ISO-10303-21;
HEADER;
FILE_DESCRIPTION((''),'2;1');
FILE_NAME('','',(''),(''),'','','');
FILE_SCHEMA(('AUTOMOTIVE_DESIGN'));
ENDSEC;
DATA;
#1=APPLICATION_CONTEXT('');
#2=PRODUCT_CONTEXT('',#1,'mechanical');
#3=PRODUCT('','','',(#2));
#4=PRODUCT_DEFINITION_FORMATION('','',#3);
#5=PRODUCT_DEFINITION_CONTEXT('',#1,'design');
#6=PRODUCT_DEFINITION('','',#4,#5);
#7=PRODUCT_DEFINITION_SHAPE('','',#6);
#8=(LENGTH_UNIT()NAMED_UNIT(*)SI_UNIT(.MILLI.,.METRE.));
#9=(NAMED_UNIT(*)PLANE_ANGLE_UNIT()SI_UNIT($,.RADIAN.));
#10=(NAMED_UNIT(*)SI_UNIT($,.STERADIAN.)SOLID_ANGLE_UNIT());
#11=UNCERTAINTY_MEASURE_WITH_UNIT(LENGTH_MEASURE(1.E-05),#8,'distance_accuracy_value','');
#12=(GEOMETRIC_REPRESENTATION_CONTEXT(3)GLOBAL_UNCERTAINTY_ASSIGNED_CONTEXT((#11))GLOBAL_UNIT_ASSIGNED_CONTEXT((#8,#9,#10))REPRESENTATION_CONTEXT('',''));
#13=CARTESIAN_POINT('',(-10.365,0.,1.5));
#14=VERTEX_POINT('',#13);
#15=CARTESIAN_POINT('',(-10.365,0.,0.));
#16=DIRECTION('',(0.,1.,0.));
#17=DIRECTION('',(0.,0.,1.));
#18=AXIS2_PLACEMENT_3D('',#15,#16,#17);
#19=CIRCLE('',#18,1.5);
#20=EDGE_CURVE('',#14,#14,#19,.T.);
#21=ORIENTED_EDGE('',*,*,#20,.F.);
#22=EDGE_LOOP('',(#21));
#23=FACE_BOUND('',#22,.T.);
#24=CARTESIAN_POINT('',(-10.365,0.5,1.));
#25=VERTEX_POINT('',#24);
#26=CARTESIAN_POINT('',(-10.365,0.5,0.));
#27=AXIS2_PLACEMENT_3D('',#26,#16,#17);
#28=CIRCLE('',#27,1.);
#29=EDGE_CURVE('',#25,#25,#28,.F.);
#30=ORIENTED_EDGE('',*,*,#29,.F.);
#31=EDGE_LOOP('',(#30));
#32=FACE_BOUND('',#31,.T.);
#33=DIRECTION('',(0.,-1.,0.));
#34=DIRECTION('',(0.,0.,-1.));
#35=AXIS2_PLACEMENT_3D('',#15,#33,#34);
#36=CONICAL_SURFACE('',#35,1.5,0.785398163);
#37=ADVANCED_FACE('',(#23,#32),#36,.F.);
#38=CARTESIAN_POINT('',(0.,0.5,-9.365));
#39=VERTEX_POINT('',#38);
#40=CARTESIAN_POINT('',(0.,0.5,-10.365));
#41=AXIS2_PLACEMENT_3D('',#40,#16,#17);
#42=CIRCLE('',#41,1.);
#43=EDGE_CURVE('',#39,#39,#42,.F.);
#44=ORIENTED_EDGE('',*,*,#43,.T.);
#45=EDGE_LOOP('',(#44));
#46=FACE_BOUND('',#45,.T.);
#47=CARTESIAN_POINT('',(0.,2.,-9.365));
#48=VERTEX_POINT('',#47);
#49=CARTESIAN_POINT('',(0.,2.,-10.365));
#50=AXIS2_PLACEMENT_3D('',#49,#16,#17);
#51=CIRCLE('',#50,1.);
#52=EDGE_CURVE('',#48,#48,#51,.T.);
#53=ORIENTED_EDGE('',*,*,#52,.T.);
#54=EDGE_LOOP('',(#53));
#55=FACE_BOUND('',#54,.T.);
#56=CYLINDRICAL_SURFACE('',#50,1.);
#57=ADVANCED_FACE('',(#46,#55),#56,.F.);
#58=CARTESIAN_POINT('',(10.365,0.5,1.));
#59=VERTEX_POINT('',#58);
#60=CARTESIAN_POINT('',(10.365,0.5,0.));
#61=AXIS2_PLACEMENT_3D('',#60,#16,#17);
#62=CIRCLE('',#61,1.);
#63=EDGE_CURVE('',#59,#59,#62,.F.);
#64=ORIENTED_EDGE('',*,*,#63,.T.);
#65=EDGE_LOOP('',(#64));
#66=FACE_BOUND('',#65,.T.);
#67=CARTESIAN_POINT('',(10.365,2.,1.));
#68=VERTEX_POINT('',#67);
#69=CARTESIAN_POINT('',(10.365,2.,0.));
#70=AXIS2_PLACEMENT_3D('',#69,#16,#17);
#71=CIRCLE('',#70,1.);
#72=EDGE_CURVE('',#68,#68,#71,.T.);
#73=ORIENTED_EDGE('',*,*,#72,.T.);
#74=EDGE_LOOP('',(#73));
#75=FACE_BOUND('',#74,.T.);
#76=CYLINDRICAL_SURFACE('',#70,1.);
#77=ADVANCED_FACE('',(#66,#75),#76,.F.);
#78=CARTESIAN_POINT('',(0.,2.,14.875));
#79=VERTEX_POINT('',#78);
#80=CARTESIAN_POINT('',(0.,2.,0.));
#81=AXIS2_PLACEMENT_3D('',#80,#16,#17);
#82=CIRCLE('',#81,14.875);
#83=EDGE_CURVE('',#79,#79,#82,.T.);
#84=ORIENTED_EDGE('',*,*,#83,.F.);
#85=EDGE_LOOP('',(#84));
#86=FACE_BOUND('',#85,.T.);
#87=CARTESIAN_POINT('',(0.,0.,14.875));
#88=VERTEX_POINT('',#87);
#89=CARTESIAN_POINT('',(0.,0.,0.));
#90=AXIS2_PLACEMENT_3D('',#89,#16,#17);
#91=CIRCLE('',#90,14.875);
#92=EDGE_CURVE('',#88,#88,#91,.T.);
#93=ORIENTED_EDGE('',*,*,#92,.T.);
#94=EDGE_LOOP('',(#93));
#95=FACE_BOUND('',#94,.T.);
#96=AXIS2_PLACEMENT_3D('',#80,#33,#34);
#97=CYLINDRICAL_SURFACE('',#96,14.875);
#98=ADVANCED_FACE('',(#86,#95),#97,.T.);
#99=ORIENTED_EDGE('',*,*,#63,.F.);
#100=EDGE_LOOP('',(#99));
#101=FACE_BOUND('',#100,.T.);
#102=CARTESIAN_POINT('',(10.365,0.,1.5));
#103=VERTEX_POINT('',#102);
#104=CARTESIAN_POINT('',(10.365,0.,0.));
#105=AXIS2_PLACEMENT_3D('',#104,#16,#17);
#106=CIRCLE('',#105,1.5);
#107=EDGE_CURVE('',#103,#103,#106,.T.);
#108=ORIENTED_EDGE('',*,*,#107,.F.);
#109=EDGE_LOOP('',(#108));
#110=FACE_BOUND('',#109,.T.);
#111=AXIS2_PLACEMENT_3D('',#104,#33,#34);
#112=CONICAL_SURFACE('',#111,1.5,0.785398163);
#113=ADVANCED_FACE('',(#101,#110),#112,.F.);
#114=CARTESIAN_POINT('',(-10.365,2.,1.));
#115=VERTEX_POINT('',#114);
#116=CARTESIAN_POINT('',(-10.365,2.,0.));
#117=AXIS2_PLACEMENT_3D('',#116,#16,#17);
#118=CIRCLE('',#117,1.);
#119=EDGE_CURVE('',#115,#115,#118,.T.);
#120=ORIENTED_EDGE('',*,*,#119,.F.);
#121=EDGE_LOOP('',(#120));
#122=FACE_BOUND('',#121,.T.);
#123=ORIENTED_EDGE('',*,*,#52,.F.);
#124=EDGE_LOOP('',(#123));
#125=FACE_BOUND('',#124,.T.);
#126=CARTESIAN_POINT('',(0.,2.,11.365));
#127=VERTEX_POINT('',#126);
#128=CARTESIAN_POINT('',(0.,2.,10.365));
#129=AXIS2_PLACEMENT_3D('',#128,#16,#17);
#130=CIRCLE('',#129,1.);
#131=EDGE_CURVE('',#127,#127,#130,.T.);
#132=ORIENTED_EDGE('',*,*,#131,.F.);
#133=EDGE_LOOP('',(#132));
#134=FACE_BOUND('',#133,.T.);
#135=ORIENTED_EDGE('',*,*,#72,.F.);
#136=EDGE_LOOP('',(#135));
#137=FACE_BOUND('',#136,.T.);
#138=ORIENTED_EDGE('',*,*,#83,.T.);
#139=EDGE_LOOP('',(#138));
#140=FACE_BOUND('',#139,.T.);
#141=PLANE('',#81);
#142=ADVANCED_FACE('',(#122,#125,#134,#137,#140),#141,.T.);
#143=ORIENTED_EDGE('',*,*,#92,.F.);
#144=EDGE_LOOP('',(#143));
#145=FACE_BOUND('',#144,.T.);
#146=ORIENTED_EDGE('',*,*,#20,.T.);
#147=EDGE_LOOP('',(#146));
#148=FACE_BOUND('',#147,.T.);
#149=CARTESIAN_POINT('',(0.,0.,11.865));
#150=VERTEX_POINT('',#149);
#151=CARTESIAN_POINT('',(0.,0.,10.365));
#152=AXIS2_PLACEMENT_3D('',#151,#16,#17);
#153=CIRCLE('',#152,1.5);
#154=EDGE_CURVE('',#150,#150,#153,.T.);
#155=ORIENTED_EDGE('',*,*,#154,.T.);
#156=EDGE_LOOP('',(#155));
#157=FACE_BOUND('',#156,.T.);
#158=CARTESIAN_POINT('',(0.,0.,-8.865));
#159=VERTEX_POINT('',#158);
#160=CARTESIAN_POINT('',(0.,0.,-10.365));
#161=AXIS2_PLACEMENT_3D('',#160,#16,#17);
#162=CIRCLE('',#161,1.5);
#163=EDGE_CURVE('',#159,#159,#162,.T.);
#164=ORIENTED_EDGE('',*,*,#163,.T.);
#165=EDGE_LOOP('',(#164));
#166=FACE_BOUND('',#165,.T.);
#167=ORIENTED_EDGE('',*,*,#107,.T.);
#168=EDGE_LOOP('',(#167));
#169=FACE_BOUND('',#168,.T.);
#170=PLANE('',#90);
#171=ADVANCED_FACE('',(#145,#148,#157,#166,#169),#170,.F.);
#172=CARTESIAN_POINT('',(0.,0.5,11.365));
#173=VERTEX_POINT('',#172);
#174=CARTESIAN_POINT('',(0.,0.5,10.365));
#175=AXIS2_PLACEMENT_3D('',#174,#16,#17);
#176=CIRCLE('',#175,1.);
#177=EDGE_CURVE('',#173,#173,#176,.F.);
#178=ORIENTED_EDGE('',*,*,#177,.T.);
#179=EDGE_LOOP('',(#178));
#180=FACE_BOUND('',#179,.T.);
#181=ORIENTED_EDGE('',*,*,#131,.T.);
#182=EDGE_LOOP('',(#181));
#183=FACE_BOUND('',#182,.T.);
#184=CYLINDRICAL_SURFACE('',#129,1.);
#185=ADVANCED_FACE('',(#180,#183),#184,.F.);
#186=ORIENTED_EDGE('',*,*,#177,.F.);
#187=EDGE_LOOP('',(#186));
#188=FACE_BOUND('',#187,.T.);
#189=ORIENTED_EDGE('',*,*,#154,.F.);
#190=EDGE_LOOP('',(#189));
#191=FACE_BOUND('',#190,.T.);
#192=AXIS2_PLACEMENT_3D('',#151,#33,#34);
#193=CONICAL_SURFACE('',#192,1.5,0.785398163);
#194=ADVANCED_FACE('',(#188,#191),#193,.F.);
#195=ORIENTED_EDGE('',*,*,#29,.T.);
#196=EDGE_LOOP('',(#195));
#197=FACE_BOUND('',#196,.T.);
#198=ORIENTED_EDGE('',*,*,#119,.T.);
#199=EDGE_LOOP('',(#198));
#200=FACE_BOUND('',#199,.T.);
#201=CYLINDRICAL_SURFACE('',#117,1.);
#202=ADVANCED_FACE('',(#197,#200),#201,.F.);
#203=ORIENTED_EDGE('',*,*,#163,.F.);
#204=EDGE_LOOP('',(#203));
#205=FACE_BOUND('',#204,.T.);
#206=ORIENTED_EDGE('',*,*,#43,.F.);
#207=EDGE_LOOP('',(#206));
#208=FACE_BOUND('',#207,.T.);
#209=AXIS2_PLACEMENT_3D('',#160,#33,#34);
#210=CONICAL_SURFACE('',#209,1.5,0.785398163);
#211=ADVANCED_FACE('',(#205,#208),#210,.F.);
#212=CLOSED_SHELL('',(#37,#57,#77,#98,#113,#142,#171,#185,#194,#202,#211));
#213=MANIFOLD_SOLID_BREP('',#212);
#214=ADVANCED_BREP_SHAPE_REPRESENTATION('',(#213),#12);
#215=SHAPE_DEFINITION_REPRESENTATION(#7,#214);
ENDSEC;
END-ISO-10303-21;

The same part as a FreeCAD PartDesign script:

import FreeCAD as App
import Part
import Sketcher


def edges_at(feature, points):
    """Names of the edges that pass closest to the given points."""
    edges = feature.Shape.Edges
    near = lambda p: min(range(len(edges)), key=lambda i: edges[i].distToShape(Part.Vertex(*p))[0])
    return sorted({f"Edge{near(p) + 1}" for p in points})

doc = App.newDocument("Part")
body = doc.addObject("PartDesign::Body", "Body")

sketch1 = body.newObject("Sketcher::SketchObject", "Sketch")
sketch1.AttachmentSupport = (doc.getObject("XZ_Plane"), [""])
sketch1.MapMode = "FlatFace"
sketch1.addGeometry(Part.Circle(App.Vector(0, 0, 0), App.Vector(0, 0, 1), 15), False)
sketch1.addConstraint(Sketcher.Constraint("Coincident", 0, 3, -1, 1))
sketch1.addConstraint(Sketcher.Constraint("Diameter", 0, 29.75))
pad1 = body.newObject("PartDesign::Pad", "Pad")
pad1.Profile = sketch1
pad1.Length = 2
pad1.Reversed = True

sketch2 = body.newObject("Sketcher::SketchObject", "Sketch001")
sketch2.AttachmentSupport = (doc.getObject("XZ_Plane"), [""])
sketch2.MapMode = "FlatFace"
sketch2.AttachmentOffset = App.Placement(App.Vector(0, 0, -2), App.Rotation())
sketch2.addGeometry(Part.Circle(App.Vector(0, -10.4, 0), App.Vector(0, 0, 1), 1), False)
sketch2.addGeometry(Part.Circle(App.Vector(10.4, 0, 0), App.Vector(0, 0, 1), 1), False)
sketch2.addGeometry(Part.Circle(App.Vector(0, 10.4, 0), App.Vector(0, 0, 1), 1), False)
sketch2.addGeometry(Part.Circle(App.Vector(-10.4, 0, 0), App.Vector(0, 0, 1), 1), False)
sketch2.addConstraint(Sketcher.Constraint("Equal", 0, 1))
sketch2.addConstraint(Sketcher.Constraint("Equal", 1, 2))
sketch2.addConstraint(Sketcher.Constraint("Equal", 2, 3))
sketch2.addConstraint(Sketcher.Constraint("Symmetric", 0, 3, 2, 3, -1, 1))
sketch2.addConstraint(Sketcher.Constraint("Symmetric", 1, 3, 3, 3, -1, 1))
sketch2.addConstraint(Sketcher.Constraint("PointOnObject", 0, 3, -2))
sketch2.addConstraint(Sketcher.Constraint("PointOnObject", 1, 3, -1))
sketch2.addConstraint(Sketcher.Constraint("Diameter", 0, 2.0))
sketch2.addConstraint(Sketcher.Constraint("DistanceY", 0, 3, 2, 3, 20.73))
sketch2.addConstraint(Sketcher.Constraint("DistanceX", 3, 3, 1, 3, 20.73))
doc.recompute()
hole = body.newObject("PartDesign::Hole", "Hole")
hole.Profile = sketch2
hole.ThreadType = "None"
hole.Diameter = 2
hole.DepthType = "Dimension"
hole.Depth = 42.93
hole.DrillPoint = "Angled"
hole.DrillPointAngle = 118
hole.Reversed = True
doc.recompute()

chamfer = body.newObject("PartDesign::Chamfer", "Chamfer")
chamfer.Base = (hole, edges_at(hole, [
    (1, 0, 10.365),
    (11.365, 0, 0),
    (1, 0, -10.365),
    (-9.365, 0, 0),
]))
chamfer.Size = 0.5

doc.recompute()
